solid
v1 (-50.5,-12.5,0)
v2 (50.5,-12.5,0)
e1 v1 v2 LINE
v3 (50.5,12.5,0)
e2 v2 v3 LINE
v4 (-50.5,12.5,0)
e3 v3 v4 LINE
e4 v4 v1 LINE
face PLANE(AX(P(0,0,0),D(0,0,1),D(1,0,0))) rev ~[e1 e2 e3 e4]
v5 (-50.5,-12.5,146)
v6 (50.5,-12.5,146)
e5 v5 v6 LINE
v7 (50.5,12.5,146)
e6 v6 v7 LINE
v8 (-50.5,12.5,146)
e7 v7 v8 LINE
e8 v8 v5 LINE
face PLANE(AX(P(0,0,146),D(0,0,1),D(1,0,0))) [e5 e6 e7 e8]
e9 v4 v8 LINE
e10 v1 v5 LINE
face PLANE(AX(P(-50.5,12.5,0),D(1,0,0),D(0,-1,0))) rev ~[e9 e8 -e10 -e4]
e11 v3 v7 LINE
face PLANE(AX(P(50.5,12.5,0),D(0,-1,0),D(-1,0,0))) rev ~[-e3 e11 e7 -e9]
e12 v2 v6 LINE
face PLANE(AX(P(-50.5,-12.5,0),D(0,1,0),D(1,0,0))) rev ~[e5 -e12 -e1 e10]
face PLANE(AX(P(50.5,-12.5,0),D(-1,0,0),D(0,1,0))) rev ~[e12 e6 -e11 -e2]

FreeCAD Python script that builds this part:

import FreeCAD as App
import Part
import Sketcher
Q = App.Units.Quantity


def add_polygon(sketch, points):
    """Adds a closed chain of lines whose ends are joined by coincident constraints."""
    first, n = sketch.GeometryCount, len(points)
    for a, b in zip(points, points[1:] + points[:1]):
        sketch.addGeometry(Part.LineSegment(App.Vector(*a, 0), App.Vector(*b, 0)), False)
    for i in range(n):
        sketch.addConstraint(Sketcher.Constraint("Coincident", first + i, 2, first + (i + 1) % n, 1))

doc = App.newDocument("Part")
body = doc.addObject("PartDesign::Body", "Body")

# Sketch on XY plane
sketch1 = doc.addObject("Sketcher::SketchObject", "Sketch")
body.addObject(sketch1)
sketch1.AttachmentSupport = (doc.XY_Plane, [""])
sketch1.MapMode = "FlatFace"
add_polygon(sketch1, [(-50.5, 12.5), (-50.5, -12.5), (50.5, -12.5), (50.5, 12.5)])  # lines 0-3
sketch1.addConstraint([
    Sketcher.Constraint("Vertical", 0),
    Sketcher.Constraint("Horizontal", 1),
    Sketcher.Constraint("Vertical", 2),
    Sketcher.Constraint("Horizontal", 3),
    Sketcher.Constraint("Symmetric", 0, 2, 2, 2, -1, 1),
    Sketcher.Constraint("DistanceX", 1, 1, 1, 2, Q("101 mm")),
    Sketcher.Constraint("DistanceY", 0, 2, 0, 1, Q("25 mm")),
])
pad1 = doc.addObject("PartDesign::Pad", "Pad")
body.addObject(pad1)
pad1.Profile = sketch1
pad1.Length = 146

doc.recompute()
